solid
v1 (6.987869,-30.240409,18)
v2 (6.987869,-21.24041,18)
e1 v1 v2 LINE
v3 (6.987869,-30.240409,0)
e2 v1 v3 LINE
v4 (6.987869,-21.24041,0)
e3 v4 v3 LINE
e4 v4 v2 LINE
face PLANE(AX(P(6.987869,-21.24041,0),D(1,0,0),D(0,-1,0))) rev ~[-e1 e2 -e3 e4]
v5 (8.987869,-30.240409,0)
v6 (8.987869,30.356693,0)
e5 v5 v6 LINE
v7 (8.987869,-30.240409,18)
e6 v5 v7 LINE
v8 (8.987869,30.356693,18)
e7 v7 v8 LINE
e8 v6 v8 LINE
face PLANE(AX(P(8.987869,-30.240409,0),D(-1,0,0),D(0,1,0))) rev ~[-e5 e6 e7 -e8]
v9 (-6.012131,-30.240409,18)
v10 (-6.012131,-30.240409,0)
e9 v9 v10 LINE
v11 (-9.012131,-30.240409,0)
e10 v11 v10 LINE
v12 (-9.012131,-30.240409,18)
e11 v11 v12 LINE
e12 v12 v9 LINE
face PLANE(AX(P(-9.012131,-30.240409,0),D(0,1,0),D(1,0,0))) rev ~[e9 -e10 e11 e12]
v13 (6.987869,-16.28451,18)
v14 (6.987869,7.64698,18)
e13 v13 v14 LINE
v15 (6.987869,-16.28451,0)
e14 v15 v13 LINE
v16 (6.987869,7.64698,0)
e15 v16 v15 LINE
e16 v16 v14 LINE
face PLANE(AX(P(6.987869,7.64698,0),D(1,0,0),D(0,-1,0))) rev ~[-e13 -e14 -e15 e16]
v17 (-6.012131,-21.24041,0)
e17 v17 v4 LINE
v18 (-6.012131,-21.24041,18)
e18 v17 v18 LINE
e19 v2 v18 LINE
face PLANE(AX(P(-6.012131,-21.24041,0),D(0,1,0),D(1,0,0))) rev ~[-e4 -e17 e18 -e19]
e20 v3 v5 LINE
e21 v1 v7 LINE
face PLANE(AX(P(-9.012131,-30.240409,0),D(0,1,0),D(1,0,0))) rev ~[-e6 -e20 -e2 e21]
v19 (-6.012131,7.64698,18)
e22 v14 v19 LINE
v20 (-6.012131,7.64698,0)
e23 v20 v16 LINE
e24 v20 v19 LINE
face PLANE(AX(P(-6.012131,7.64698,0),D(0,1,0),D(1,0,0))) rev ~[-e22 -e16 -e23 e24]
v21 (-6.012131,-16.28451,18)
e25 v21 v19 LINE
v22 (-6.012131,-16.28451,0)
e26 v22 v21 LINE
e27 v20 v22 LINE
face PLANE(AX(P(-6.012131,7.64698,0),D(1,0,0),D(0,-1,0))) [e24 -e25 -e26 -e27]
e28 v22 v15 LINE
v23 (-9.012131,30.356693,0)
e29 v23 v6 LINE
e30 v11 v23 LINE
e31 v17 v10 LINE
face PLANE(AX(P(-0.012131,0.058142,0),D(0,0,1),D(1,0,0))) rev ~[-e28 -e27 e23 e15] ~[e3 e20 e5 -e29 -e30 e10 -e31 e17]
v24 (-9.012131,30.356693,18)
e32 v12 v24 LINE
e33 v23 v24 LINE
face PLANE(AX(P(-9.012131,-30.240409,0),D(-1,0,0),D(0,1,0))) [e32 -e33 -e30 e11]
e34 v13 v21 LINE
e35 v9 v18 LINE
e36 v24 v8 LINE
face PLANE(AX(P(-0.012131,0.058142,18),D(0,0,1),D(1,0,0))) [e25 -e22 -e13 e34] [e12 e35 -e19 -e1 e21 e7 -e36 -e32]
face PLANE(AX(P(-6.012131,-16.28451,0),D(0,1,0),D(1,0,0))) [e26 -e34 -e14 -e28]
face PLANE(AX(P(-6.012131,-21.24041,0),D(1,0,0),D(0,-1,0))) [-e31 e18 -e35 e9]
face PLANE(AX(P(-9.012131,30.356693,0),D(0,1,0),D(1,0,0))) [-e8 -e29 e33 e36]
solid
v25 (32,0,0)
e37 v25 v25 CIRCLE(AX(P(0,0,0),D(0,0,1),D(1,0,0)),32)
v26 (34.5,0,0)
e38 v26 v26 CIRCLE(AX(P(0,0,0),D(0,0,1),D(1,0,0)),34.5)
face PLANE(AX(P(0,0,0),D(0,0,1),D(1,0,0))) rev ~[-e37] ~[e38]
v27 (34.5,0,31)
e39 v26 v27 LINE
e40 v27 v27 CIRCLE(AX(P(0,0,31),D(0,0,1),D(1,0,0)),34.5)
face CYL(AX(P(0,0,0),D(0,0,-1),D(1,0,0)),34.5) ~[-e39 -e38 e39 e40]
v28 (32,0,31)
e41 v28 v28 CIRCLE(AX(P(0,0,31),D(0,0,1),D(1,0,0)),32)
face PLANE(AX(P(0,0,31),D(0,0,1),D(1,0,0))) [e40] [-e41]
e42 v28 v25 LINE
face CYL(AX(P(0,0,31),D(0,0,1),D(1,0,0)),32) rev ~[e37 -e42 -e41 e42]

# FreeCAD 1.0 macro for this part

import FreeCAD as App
import Part
import Sketcher


def add_polygon(sketch, points):
    """Adds a closed chain of lines whose ends are joined by coincident constraints."""
    first, n = sketch.GeometryCount, len(points)
    for a, b in zip(points, points[1:] + points[:1]):
        sketch.addGeometry(Part.LineSegment(App.Vector(*a, 0), App.Vector(*b, 0)), False)
    for i in range(n):
        sketch.addConstraint(Sketcher.Constraint("Coincident", first + i, 2, first + (i + 1) % n, 1))

doc = App.newDocument("Part")
params = doc.addObject("Spreadsheet::Sheet", "Params")
for row, (alias, value) in enumerate([
    ("sketch1_diameter", "69 mm"),
    ("pad1_length", "31 mm"),
    ("sketch2_diameter", "64 mm"),
    ("pocket1_length", "32 mm"),
    ("sketch3_width", "18 mm"),
    ("pad2_length", "18 mm"),
    ("sketch4_width", "13 mm"),
    ("sketch4_height", "9 mm"),
    ("pocket2_length", "25 mm"),
    ("sketch5_width", "13 mm"),
    ("pocket3_length", "25 mm"),
], start=1):
    params.set(f"A{row}", alias)
    params.set(f"B{row}", "=" + value)
    params.setAlias(f"B{row}", alias)

body = doc.addObject("PartDesign::Body", "Body")

# Sketch on XY plane
sketch1 = doc.addObject("Sketcher::SketchObject", "Sketch")
body.addObject(sketch1)
sketch1.AttachmentSupport = (doc.XY_Plane, [""])
sketch1.MapMode = "FlatFace"
sketch1.addGeometry(Part.Circle(App.Vector(0, 0, 0), App.Vector(0, 0, 1), 34.5), False)
sketch1.addConstraint(Sketcher.Constraint("Coincident", 0, 3, -1, 1))
sketch1.addConstraint(Sketcher.Constraint("Diameter", 0, 69.0))
sketch1.setExpression("Constraints[1]", "Params.sketch1_diameter")
pad1 = doc.addObject("PartDesign::Pad", "Pad")
body.addObject(pad1)
pad1.Profile = sketch1
pad1.setExpression("Length", "Params.pad1_length")

# Sketch on XY plane
sketch2 = doc.addObject("Sketcher::SketchObject", "Sketch001")
body.addObject(sketch2)
sketch2.AttachmentSupport = (doc.XY_Plane, [""])
sketch2.MapMode = "FlatFace"
sketch2.AttachmentOffset = App.Placement(App.Vector(0, 0, 31), App.Rotation())
sketch2.addGeometry(Part.Circle(App.Vector(0, 0, 0), App.Vector(0, 0, 1), 32), False)
sketch2.addConstraint(Sketcher.Constraint("Coincident", 0, 3, -1, 1))
sketch2.addConstraint(Sketcher.Constraint("Diameter", 0, 64.0))
sketch2.setExpression("Constraints[1]", "Params.sketch2_diameter")
pocket1 = doc.addObject("PartDesign::Pocket", "Pocket")
body.addObject(pocket1)
pocket1.Profile = sketch2
pocket1.setExpression("Length", "Params.pocket1_length")
body2 = doc.addObject("PartDesign::Body", "Body001")

# Sketch on XY plane
sketch3 = doc.addObject("Sketcher::SketchObject", "Sketch002")
body2.addObject(sketch3)
sketch3.AttachmentSupport = (doc.getObject("XY_Plane001"), [""])
sketch3.MapMode = "FlatFace"
add_polygon(sketch3, [(-9.012131, 30.356693), (-9.012131, -30.240409), (8.987869, -30.240409), (8.987869, 30.356693)])  # lines 0-3
sketch3.addConstraint(Sketcher.Constraint("Vertical", 0))
sketch3.addConstraint(Sketcher.Constraint("Horizontal", 1))
sketch3.addConstraint(Sketcher.Constraint("Vertical", 2))
sketch3.addConstraint(Sketcher.Constraint("Horizontal", 3))
sketch3.addConstraint(Sketcher.Constraint("DistanceX", 1, 1, 1, 2, 18.0))
sketch3.addConstraint(Sketcher.Constraint("DistanceY", 0, 2, 0, 1, 60.597103))
sketch3.addConstraint(Sketcher.Constraint("DistanceX", 0, 2, -1, 1, 9.012131))
sketch3.addConstraint(Sketcher.Constraint("DistanceY", 0, 2, -1, 1, 30.240409))
sketch3.setExpression("Constraints[8]", "Params.sketch3_width")
pad2 = doc.addObject("PartDesign::Pad", "Pad001")
body2.addObject(pad2)
pad2.Profile = sketch3
pad2.setExpression("Length", "Params.pad2_length")

# Sketch on XY plane
sketch4 = doc.addObject("Sketcher::SketchObject", "Sketch003")
body2.addObject(sketch4)
sketch4.AttachmentSupport = (doc.getObject("XY_Plane001"), [""])
sketch4.MapMode = "FlatFace"
add_polygon(sketch4, [(-6.012131, -30.24041), (-6.012131, -21.24041), (6.987869, -21.24041), (6.987869, -30.24041)])  # lines 0-3
sketch4.addConstraint(Sketcher.Constraint("Vertical", 0))
sketch4.addConstraint(Sketcher.Constraint("Horizontal", 1))
sketch4.addConstraint(Sketcher.Constraint("Vertical", 2))
sketch4.addConstraint(Sketcher.Constraint("Horizontal", 3))
sketch4.addConstraint(Sketcher.Constraint("DistanceX", 1, 1, 1, 2, 13.0))
sketch4.addConstraint(Sketcher.Constraint("DistanceY", 0, 1, 0, 2, 9.0))
sketch4.addConstraint(Sketcher.Constraint("DistanceX", 0, 2, -1, 1, 6.012131))
sketch4.addConstraint(Sketcher.Constraint("DistanceY", 0, 2, -1, 1, 21.24041))
sketch4.setExpression("Constraints[8]", "Params.sketch4_width")
sketch4.setExpression("Constraints[9]", "Params.sketch4_height")
pocket2 = doc.addObject("PartDesign::Pocket", "Pocket001")
body2.addObject(pocket2)
pocket2.Profile = sketch4
pocket2.setExpression("Length", "Params.pocket2_length")
pocket2.Reversed = True

# Sketch on XY plane
sketch5 = doc.addObject("Sketcher::SketchObject", "Sketch004")
body2.addObject(sketch5)
sketch5.AttachmentSupport = (doc.getObject("XY_Plane001"), [""])
sketch5.MapMode = "FlatFace"
add_polygon(sketch5, [(-6.012131, -16.28451), (-6.012131, 7.64698), (6.987869, 7.64698), (6.987869, -16.28451)])  # lines 0-3
sketch5.addConstraint(Sketcher.Constraint("Vertical", 0))
sketch5.addConstraint(Sketcher.Constraint("Horizontal", 1))
sketch5.addConstraint(Sketcher.Constraint("Vertical", 2))
sketch5.addConstraint(Sketcher.Constraint("Horizontal", 3))
sketch5.addConstraint(Sketcher.Constraint("DistanceX", 1, 1, 1, 2, 13.0))
sketch5.addConstraint(Sketcher.Constraint("DistanceY", 0, 1, 0, 2, 23.931491))
sketch5.addConstraint(Sketcher.Constraint("DistanceX", 0, 2, -1, 1, 6.012131))
sketch5.addConstraint(Sketcher.Constraint("DistanceY", -1, 1, 0, 2, 7.64698))
sketch5.setExpression("Constraints[8]", "Params.sketch5_width")
pocket3 = doc.addObject("PartDesign::Pocket", "Pocket002")
body2.addObject(pocket3)
pocket3.Profile = sketch5
pocket3.setExpression("Length", "Params.pocket3_length")
pocket3.Reversed = True

doc.recompute()
